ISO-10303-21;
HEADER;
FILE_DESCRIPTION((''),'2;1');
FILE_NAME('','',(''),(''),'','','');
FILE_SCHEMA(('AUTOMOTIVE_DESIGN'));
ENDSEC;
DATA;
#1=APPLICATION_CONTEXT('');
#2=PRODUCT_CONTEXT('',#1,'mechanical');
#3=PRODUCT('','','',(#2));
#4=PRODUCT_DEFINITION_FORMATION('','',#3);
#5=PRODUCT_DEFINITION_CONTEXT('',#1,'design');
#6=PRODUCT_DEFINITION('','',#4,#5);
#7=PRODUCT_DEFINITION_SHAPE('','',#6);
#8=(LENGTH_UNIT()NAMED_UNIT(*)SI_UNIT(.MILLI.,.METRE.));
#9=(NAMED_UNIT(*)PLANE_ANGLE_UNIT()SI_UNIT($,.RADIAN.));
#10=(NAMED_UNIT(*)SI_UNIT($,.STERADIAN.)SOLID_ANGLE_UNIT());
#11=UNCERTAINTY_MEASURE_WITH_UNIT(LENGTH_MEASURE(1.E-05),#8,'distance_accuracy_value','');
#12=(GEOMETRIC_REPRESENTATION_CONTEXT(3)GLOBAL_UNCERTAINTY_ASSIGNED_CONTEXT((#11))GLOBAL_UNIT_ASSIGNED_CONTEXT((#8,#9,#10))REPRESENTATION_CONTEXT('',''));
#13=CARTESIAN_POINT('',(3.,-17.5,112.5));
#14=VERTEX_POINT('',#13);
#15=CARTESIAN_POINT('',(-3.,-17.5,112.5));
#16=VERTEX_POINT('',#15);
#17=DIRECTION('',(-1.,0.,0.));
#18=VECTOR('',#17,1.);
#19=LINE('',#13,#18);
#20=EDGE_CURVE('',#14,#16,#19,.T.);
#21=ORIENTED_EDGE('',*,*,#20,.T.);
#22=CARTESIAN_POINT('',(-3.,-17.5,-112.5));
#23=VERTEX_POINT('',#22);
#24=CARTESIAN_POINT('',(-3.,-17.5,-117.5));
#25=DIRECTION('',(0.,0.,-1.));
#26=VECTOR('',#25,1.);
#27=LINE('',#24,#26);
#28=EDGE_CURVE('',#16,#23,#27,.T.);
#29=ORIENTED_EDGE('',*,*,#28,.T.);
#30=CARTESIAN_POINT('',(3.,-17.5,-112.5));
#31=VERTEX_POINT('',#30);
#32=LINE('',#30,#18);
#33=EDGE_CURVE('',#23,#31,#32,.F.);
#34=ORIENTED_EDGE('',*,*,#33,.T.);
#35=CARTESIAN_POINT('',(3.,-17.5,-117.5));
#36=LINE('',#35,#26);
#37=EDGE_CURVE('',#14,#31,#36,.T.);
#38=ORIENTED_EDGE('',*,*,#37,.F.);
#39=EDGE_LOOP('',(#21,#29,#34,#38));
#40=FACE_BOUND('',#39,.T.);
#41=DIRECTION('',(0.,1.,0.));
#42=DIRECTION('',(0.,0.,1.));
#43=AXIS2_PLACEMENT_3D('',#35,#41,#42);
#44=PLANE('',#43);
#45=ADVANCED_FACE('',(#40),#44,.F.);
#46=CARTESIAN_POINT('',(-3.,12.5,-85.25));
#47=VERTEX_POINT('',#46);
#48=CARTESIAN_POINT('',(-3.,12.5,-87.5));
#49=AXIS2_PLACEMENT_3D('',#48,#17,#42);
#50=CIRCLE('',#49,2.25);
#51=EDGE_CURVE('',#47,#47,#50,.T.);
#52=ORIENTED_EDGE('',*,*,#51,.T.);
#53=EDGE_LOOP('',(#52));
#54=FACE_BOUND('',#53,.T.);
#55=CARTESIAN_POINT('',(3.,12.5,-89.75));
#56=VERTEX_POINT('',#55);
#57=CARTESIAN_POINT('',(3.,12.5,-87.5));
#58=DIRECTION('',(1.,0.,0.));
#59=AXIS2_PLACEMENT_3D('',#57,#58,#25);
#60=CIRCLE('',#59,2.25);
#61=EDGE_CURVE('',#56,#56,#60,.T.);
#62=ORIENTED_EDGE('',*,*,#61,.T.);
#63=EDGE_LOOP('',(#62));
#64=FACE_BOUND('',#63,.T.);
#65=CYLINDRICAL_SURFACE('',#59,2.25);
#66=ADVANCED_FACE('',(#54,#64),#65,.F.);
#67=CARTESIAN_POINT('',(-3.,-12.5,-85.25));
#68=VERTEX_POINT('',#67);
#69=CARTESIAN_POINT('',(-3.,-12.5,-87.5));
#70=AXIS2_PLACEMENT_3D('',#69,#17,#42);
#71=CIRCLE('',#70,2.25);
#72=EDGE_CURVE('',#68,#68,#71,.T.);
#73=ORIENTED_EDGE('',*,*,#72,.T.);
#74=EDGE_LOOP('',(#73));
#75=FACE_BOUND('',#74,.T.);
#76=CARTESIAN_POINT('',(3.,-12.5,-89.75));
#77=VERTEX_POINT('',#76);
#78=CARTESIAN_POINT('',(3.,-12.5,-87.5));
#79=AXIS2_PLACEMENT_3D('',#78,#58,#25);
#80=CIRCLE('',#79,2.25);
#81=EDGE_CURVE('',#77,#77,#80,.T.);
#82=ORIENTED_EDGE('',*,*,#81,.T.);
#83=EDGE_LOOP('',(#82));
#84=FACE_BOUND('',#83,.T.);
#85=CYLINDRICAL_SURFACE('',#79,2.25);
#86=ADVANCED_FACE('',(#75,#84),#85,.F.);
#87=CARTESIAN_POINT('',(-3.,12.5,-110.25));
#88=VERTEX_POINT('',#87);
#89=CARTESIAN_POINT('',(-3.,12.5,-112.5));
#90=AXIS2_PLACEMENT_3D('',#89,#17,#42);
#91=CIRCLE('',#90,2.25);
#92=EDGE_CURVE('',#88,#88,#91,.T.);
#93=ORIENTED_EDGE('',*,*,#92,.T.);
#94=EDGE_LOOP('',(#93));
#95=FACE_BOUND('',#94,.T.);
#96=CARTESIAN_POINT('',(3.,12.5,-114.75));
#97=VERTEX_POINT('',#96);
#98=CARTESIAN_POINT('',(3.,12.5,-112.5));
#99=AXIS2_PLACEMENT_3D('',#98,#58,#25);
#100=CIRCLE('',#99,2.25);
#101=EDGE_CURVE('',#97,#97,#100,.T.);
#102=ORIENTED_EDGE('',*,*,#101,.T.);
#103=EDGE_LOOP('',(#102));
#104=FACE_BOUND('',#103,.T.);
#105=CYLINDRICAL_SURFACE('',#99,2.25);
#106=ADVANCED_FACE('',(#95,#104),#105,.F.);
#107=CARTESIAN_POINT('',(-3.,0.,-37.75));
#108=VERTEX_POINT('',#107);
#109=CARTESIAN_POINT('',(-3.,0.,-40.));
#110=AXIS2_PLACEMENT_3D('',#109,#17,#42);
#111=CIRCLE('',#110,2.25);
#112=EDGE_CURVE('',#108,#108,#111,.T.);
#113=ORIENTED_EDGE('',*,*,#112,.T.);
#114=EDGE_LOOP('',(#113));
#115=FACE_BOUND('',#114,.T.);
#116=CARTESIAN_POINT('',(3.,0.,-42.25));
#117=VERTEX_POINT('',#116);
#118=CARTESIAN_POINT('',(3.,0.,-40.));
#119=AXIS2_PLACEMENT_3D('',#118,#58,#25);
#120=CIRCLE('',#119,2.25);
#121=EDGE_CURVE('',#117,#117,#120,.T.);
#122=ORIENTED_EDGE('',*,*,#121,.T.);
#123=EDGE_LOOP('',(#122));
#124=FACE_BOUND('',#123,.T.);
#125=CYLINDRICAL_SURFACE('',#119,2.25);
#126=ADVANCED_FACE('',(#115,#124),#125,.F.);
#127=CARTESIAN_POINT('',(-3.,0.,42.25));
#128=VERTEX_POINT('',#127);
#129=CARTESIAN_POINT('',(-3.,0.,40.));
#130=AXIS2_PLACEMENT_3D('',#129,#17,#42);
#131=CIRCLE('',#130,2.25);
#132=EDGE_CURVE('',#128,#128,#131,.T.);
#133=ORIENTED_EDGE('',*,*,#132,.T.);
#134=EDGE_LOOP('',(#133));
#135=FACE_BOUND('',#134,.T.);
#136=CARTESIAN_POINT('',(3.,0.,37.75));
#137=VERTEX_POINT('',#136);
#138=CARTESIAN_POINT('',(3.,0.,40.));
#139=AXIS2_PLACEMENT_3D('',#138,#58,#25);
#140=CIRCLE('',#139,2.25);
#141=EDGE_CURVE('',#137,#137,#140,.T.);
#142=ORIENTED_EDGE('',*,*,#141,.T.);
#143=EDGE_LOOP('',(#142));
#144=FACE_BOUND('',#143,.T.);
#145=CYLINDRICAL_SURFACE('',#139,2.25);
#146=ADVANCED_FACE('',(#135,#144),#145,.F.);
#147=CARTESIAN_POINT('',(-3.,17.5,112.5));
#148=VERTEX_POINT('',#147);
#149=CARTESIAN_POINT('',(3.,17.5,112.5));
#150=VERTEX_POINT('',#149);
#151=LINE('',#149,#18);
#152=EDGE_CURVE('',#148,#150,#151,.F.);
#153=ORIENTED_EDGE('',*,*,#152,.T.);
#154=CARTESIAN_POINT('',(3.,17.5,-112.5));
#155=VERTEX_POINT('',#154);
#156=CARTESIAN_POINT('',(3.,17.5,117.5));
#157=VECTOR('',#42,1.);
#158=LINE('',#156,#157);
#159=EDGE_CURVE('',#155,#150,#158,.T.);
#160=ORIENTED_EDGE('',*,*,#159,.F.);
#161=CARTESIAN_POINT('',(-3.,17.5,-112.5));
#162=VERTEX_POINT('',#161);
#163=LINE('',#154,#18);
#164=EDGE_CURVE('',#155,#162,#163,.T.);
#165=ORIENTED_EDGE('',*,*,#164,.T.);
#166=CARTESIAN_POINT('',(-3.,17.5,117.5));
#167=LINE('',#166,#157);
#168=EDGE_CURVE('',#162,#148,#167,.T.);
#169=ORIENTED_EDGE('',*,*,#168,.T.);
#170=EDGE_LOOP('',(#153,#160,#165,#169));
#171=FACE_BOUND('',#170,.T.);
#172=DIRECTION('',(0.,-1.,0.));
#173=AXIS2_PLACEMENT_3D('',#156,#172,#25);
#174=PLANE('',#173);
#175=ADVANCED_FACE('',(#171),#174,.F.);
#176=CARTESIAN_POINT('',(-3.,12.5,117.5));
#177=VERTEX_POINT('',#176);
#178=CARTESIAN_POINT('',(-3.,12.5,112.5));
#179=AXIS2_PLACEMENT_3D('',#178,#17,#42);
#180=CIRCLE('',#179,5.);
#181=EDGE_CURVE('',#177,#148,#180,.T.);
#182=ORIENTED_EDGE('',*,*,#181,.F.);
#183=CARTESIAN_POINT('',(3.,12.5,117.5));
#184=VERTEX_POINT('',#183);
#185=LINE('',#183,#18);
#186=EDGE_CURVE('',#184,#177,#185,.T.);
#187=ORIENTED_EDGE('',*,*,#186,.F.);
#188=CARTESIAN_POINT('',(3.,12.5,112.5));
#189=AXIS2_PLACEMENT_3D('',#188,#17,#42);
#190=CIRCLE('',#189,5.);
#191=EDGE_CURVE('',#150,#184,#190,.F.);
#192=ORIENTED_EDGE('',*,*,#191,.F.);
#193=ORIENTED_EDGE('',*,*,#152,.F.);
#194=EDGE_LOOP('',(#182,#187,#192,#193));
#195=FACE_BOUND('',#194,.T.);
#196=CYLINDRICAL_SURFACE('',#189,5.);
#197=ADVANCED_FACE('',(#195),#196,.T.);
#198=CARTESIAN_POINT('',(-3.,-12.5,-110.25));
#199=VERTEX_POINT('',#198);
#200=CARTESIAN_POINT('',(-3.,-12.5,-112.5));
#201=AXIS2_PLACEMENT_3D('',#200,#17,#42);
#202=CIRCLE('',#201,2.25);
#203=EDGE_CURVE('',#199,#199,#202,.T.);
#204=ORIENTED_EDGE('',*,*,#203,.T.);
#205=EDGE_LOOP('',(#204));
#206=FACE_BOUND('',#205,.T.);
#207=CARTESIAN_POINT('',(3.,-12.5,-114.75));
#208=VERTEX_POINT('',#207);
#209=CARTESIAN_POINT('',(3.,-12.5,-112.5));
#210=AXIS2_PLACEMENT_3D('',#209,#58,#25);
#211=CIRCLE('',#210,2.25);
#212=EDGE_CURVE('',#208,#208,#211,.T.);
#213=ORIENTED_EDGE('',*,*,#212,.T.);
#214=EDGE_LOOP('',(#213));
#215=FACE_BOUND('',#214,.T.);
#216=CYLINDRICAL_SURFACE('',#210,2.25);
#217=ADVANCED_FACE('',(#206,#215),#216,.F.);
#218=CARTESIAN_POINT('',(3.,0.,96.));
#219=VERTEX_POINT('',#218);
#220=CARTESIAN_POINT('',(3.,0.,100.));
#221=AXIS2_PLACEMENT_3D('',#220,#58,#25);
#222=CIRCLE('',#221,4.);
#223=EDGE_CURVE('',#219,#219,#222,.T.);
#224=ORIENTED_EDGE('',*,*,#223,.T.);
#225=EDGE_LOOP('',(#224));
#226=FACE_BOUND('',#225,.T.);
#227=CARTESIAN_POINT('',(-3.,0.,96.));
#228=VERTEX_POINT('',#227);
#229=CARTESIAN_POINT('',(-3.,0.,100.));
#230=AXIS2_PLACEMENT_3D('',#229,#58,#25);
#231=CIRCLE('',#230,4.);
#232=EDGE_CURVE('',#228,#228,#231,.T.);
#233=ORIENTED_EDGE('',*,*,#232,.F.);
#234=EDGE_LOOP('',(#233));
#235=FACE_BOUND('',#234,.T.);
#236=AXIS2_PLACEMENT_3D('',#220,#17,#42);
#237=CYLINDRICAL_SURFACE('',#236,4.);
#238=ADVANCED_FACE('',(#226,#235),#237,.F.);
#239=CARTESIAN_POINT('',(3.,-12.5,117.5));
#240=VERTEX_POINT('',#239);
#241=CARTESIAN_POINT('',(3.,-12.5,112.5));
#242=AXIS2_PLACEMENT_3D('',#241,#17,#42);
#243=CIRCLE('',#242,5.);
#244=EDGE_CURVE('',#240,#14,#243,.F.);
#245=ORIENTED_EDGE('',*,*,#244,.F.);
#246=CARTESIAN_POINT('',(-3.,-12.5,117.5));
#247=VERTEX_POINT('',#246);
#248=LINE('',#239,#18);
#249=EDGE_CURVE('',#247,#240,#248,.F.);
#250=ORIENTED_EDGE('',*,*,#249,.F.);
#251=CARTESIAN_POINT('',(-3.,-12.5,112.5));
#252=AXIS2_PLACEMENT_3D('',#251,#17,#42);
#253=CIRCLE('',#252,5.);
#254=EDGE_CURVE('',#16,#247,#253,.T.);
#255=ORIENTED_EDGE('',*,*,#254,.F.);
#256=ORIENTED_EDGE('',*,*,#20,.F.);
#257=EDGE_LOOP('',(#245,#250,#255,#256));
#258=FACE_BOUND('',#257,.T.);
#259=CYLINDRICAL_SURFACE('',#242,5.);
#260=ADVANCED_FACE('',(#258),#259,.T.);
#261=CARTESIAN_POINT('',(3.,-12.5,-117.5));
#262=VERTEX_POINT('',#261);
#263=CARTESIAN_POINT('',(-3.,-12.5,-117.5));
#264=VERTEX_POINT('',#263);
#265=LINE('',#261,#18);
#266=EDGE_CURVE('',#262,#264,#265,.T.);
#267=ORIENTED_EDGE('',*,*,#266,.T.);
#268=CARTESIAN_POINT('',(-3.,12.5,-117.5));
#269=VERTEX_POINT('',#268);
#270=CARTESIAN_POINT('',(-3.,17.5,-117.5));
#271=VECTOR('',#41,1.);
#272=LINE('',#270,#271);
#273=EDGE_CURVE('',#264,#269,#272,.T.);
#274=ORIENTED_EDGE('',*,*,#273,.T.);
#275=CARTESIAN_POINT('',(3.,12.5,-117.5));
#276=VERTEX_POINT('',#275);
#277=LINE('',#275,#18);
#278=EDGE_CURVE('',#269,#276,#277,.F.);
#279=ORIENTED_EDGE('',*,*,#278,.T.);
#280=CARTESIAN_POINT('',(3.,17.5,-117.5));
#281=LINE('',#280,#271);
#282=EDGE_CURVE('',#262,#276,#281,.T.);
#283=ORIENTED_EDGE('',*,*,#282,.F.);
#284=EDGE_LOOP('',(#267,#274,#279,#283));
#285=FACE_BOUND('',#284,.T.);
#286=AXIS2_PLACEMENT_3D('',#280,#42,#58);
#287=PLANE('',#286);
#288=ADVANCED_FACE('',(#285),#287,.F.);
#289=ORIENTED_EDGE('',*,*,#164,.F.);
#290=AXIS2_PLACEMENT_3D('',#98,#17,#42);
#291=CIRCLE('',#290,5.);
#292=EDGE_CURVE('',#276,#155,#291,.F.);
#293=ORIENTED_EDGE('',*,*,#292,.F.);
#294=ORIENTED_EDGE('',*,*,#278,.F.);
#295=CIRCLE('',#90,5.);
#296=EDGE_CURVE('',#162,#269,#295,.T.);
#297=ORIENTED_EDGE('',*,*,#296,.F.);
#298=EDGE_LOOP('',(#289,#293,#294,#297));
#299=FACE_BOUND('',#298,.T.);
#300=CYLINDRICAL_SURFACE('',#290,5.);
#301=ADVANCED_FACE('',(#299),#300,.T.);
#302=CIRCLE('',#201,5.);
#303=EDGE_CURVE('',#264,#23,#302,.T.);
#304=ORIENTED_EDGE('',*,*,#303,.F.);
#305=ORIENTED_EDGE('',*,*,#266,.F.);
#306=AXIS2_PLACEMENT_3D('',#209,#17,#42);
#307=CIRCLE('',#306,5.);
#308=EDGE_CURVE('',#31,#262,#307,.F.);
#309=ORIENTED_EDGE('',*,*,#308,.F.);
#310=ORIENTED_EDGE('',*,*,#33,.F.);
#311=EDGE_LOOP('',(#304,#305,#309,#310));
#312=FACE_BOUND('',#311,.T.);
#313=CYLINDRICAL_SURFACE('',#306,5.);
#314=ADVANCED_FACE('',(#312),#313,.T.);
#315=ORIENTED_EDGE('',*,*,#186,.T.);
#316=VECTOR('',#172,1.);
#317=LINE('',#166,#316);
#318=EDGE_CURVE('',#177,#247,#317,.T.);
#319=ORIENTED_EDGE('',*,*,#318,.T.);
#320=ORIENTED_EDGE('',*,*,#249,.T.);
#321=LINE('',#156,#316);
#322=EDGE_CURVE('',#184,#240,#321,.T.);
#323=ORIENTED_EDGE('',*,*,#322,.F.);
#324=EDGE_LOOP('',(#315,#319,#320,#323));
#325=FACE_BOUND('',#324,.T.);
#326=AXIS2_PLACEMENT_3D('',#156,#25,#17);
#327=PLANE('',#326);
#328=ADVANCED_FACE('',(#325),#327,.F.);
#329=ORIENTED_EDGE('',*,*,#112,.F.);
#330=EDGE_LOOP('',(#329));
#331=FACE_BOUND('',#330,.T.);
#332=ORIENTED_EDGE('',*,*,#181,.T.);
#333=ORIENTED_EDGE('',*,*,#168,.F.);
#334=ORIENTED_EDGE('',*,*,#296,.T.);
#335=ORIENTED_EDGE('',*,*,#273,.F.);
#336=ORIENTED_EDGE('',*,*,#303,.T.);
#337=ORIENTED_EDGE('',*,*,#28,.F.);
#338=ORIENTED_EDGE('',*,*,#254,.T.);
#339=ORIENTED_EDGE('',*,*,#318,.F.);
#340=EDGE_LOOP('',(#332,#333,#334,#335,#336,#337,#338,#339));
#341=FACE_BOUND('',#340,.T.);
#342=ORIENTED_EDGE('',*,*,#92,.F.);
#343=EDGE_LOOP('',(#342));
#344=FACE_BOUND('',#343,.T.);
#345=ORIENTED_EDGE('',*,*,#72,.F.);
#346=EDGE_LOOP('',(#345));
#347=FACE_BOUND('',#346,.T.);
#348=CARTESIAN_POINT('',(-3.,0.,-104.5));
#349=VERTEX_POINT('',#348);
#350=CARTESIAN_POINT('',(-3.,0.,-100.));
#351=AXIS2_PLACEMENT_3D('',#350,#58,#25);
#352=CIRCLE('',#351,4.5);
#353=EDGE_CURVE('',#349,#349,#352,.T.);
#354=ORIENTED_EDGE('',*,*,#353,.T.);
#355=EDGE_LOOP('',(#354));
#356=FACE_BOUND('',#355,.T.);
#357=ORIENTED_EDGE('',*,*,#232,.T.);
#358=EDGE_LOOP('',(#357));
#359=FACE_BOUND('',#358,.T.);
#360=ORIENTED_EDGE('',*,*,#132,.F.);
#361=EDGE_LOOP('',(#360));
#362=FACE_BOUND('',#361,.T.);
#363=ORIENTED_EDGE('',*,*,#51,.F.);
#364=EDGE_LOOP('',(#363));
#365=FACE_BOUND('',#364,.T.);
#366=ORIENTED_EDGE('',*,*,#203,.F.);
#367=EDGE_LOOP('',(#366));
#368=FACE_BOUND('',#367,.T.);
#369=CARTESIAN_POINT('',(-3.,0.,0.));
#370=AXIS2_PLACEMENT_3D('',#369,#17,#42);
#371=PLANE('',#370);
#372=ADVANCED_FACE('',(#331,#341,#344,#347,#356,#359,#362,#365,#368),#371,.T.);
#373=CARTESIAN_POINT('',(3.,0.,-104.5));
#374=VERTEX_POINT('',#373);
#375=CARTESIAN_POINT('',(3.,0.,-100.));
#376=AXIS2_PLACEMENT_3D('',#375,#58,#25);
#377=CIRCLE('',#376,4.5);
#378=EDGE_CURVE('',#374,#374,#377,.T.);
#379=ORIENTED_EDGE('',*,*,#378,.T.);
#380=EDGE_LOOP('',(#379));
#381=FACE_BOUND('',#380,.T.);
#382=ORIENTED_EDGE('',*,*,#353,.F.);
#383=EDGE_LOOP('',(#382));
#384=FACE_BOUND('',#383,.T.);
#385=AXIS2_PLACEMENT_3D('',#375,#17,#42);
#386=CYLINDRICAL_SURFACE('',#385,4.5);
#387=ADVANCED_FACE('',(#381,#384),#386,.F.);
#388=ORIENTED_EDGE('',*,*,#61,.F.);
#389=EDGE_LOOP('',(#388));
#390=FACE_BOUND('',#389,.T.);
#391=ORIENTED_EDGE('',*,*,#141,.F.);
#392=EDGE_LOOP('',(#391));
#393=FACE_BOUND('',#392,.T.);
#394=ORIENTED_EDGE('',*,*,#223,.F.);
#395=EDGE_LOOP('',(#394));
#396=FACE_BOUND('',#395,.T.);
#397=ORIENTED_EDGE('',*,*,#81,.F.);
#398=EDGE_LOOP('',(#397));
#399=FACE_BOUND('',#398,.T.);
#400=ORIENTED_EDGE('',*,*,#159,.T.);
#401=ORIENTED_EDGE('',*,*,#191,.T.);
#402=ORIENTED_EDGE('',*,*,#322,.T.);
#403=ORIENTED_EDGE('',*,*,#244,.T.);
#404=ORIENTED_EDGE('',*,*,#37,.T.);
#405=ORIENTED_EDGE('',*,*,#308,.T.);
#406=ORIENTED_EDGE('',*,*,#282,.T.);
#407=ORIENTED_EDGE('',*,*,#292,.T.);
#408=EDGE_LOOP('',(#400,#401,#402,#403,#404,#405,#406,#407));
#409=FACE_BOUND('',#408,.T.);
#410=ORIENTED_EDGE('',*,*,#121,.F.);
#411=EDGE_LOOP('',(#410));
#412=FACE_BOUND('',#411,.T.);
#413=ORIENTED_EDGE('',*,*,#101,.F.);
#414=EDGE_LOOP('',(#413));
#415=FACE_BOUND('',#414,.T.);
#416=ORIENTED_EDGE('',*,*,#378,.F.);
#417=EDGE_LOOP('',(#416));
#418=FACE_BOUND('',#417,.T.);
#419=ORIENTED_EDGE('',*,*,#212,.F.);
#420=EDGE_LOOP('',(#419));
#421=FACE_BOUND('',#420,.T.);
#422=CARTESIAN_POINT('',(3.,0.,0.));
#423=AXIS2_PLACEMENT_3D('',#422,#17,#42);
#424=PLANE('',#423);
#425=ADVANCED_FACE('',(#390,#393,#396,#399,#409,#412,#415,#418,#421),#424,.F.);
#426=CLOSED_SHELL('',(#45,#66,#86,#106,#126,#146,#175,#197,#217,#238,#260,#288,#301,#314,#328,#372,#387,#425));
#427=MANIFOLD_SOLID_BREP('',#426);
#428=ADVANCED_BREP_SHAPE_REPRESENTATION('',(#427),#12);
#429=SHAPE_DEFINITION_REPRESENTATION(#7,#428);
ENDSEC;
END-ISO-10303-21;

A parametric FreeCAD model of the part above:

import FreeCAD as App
import Part
import Sketcher
Q = App.Units.Quantity


def edges_at(feature, points):
    """Names of the edges that pass closest to the given points."""
    edges = feature.Shape.Edges
    near = lambda p: min(range(len(edges)), key=lambda i: edges[i].distToShape(Part.Vertex(*p))[0])
    return sorted({f"Edge{near(p) + 1}" for p in points})


def add_polygon(sketch, points):
    """Adds a closed chain of lines whose ends are joined by coincident constraints."""
    first, n = sketch.GeometryCount, len(points)
    for a, b in zip(points, points[1:] + points[:1]):
        sketch.addGeometry(Part.LineSegment(App.Vector(*a, 0), App.Vector(*b, 0)), False)
    for i in range(n):
        sketch.addConstraint(Sketcher.Constraint("Coincident", first + i, 2, first + (i + 1) % n, 1))

doc = App.newDocument("Part")
body = doc.addObject("PartDesign::Body", "Body")

sketch1 = body.newObject("Sketcher::SketchObject", "Sketch")
sketch1.AttachmentSupport = (doc.getObject("YZ_Plane"), [""])
sketch1.MapMode = "FlatFace"
add_polygon(sketch1, [(17.5, 117.5), (-17.5, 117.5), (-17.5, -117.5), (17.5, -117.5)])
sketch1.addGeometry(Part.Circle(App.Vector(0, 100, 0), App.Vector(0, 0, 1), 4), False)
sketch1.addGeometry(Part.Circle(App.Vector(0, -100, 0), App.Vector(0, 0, 1), 4.5), False)
sketch1.addConstraint([
    Sketcher.Constraint("Horizontal", 0),
    Sketcher.Constraint("Vertical", 1),
    Sketcher.Constraint("Horizontal", 2),
    Sketcher.Constraint("Vertical", 3),
    Sketcher.Constraint("Symmetric", 4, 3, 5, 3, -1, 1),
    Sketcher.Constraint("Symmetric", 0, 2, 2, 2, -1, 1),
    Sketcher.Constraint("PointOnObject", 4, 3, -2),
    Sketcher.Constraint("Diameter", 4, Q("8 mm")),
    Sketcher.Constraint("Diameter", 5, Q("9 mm")),
    Sketcher.Constraint("DistanceX", 0, 2, 0, 1, Q("35 mm")),
    Sketcher.Constraint("DistanceY", 1, 2, 1, 1, Q("235 mm")),
    Sketcher.Constraint("DistanceY", -1, 1, 4, 3, Q("100 mm")),
])
pad1 = body.newObject("PartDesign::Pad", "Pad")
pad1.Profile = sketch1
pad1.Length = 6
pad1.Midplane = True
doc.recompute()

fillet = body.newObject("PartDesign::Fillet", "Fillet")
fillet.Base = (pad1, edges_at(pad1, [
    (0, 17.5, 117.5),
    (0, 17.5, -117.5),
    (0, -17.5, -117.5),
    (0, -17.5, 117.5),
]))
fillet.Radius = 5

sketch2 = body.newObject("Sketcher::SketchObject", "Sketch001")
sketch2.AttachmentSupport = (doc.getObject("YZ_Plane"), [""])
sketch2.MapMode = "FlatFace"
sketch2.AttachmentOffset = App.Placement(App.Vector(0, 0, 3), App.Rotation())
sketch2.addGeometry([
    Part.Circle(App.Vector(12.5, -112.5, 0), App.Vector(0, 0, 1), 2.2),
    Part.Circle(App.Vector(12.5, -87.5, 0), App.Vector(0, 0, 1), 2.2),
    Part.Circle(App.Vector(-12.5, -87.5, 0), App.Vector(0, 0, 1), 2.2),
    Part.Circle(App.Vector(-12.5, -112.5, 0), App.Vector(0, 0, 1), 2.2),
], False)
sketch2.addConstraint([
    Sketcher.Constraint("Equal", 0, 1),
    Sketcher.Constraint("Equal", 1, 2),
    Sketcher.Constraint("Equal", 2, 3),
    Sketcher.Constraint("Symmetric", 1, 3, 2, 3, -2),
    Sketcher.Constraint("Symmetric", 0, 3, 3, 3, -2),
    Sketcher.Constraint("Vertical", 0, 3, 1, 3),
    Sketcher.Constraint("Diameter", 0, Q("4.5 mm")),
    Sketcher.Constraint("DistanceY", 0, 3, 1, 3, Q("25 mm")),
    Sketcher.Constraint("DistanceX", 2, 3, 1, 3, Q("25 mm")),
    Sketcher.Constraint("DistanceY", 0, 3, -1, 1, Q("112.5 mm")),
])
doc.recompute()
hole = body.newObject("PartDesign::Hole", "Hole")
hole.Profile = sketch2
hole.ThreadType = "None"
hole.Diameter = 4.5
hole.DepthType = "ThroughAll"

sketch3 = body.newObject("Sketcher::SketchObject", "Sketch002")
sketch3.AttachmentSupport = (doc.getObject("YZ_Plane"), [""])
sketch3.MapMode = "FlatFace"
sketch3.AttachmentOffset = App.Placement(App.Vector(0, 0, 3), App.Rotation())
sketch3.addGeometry([
    Part.Circle(App.Vector(0, 40, 0), App.Vector(0, 0, 1), 2.2),
    Part.Circle(App.Vector(0, -40, 0), App.Vector(0, 0, 1), 2.2),
], False)
sketch3.addConstraint([
    Sketcher.Constraint("Equal", 0, 1),
    Sketcher.Constraint("Symmetric", 0, 3, 1, 3, -1, 1),
    Sketcher.Constraint("PointOnObject", 0, 3, -2),
    Sketcher.Constraint("Diameter", 0, Q("4.5 mm")),
    Sketcher.Constraint("DistanceY", -1, 1, 0, 3, Q("40 mm")),
])
doc.recompute()
hole2 = body.newObject("PartDesign::Hole", "Hole001")
hole2.Profile = sketch3
hole2.ThreadType = "None"
hole2.Diameter = 4.5
hole2.DepthType = "ThroughAll"

doc.recompute()
